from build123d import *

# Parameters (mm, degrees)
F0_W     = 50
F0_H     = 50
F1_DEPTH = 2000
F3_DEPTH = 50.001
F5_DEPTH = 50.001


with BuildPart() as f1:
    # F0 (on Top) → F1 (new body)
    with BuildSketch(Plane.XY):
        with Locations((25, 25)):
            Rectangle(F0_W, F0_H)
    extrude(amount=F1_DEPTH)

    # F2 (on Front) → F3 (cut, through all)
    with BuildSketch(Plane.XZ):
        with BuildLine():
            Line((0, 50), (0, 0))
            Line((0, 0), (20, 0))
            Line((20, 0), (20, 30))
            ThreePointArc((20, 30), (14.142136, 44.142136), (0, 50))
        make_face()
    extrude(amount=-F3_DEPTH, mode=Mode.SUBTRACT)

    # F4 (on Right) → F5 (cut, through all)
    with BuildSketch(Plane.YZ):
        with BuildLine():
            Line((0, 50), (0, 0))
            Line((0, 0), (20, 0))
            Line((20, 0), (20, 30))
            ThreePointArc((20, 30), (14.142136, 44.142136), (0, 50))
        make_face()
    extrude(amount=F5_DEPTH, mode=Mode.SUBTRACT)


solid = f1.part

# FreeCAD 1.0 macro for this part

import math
import FreeCAD as App
import Part
import Sketcher

V = App.Vector


def add_polygon(sketch, points):
    """Adds a closed chain of lines whose ends are joined by coincident constraints."""
    first, n = sketch.GeometryCount, len(points)
    for a, b in zip(points, points[1:] + points[:1]):
        sketch.addGeometry(Part.LineSegment(App.Vector(*a, 0), App.Vector(*b, 0)), False)
    for i in range(n):
        sketch.addConstraint(Sketcher.Constraint("Coincident", first + i, 2, first + (i + 1) % n, 1))

doc = App.newDocument("Part")
body = doc.addObject("PartDesign::Body", "Body")

sketch1 = body.newObject("Sketcher::SketchObject", "Sketch")
sketch1.AttachmentSupport = (doc.getObject("XY_Plane"), [""])
sketch1.MapMode = "FlatFace"
add_polygon(sketch1, [(0, 50), (0, 0), (50, 0), (50, 50)])
sketch1.addConstraint([
    Sketcher.Constraint("Vertical", 0),
    Sketcher.Constraint("Horizontal", 1),
    Sketcher.Constraint("Vertical", 2),
    Sketcher.Constraint("Horizontal", 3),
    Sketcher.Constraint("Coincident", 0, 2, -1, 1),
    Sketcher.Constraint("Equal", 3, 0),
    Sketcher.Constraint("DistanceX", 1, 1, 1, 2, 50.0),
])
pad1 = body.newObject("PartDesign::Pad", "Pad")
pad1.Profile = sketch1
pad1.Length = 2000

sketch2 = body.newObject("Sketcher::SketchObject", "Sketch001")
sketch2.AttachmentSupport = (doc.getObject("XZ_Plane"), [""])
sketch2.MapMode = "FlatFace"
sketch2.addGeometry([
    Part.LineSegment(V(0, 50, 0), V(0, 0, 0)),
    Part.LineSegment(V(0, 0, 0), V(20, 0, 0)),
    Part.LineSegment(V(20, 0, 0), V(20, 30, 0)),
    Part.ArcOfCircle(Part.Circle(V(0, 30, 0), V(0, 0, 1), 20), math.radians(0), math.radians(90)),
], False)
sketch2.addConstraint([
    Sketcher.Constraint("Coincident", 0, 2, 1, 1),
    Sketcher.Constraint("Coincident", 1, 2, 2, 1),
    Sketcher.Constraint("Tangent", 2, 2, 3, 1),
    Sketcher.Constraint("Coincident", 3, 2, 0, 1),
    Sketcher.Constraint("Vertical", 0),
    Sketcher.Constraint("Horizontal", 1),
    Sketcher.Constraint("Vertical", 2),
    Sketcher.Constraint("Coincident", 0, 2, -1, 1),
    Sketcher.Constraint("PointOnObject", 3, 3, -2),
    Sketcher.Constraint("Radius", 3, 19.999999),
    Sketcher.Constraint("DistanceY", 0, 2, 0, 1, 50.0),
])
pocket1 = body.newObject("PartDesign::Pocket", "Pocket")
pocket1.Profile = sketch2
pocket1.Type = "ThroughAll"

sketch3 = body.newObject("Sketcher::SketchObject", "Sketch002")
sketch3.AttachmentSupport = (doc.getObject("YZ_Plane"), [""])
sketch3.MapMode = "FlatFace"
sketch3.addGeometry([
    Part.LineSegment(V(0, 50, 0), V(0, 0, 0)),
    Part.LineSegment(V(0, 0, 0), V(20, 0, 0)),
    Part.LineSegment(V(20, 0, 0), V(20, 30, 0)),
    Part.ArcOfCircle(Part.Circle(V(0, 30, 0), V(0, 0, 1), 20), math.radians(0), math.radians(90)),
], False)
sketch3.addConstraint([
    Sketcher.Constraint("Coincident", 0, 2, 1, 1),
    Sketcher.Constraint("Coincident", 1, 2, 2, 1),
    Sketcher.Constraint("Tangent", 2, 2, 3, 1),
    Sketcher.Constraint("Coincident", 3, 2, 0, 1),
    Sketcher.Constraint("Vertical", 0),
    Sketcher.Constraint("Horizontal", 1),
    Sketcher.Constraint("Vertical", 2),
    Sketcher.Constraint("Coincident", 0, 2, -1, 1),
    Sketcher.Constraint("PointOnObject", 3, 3, -2),
    Sketcher.Constraint("Radius", 3, 19.999999),
    Sketcher.Constraint("DistanceY", 0, 2, 0, 1, 50.0),
])
pocket2 = body.newObject("PartDesign::Pocket", "Pocket001")
pocket2.Profile = sketch3
pocket2.Type = "ThroughAll"
pocket2.Reversed = True

doc.recompute()
